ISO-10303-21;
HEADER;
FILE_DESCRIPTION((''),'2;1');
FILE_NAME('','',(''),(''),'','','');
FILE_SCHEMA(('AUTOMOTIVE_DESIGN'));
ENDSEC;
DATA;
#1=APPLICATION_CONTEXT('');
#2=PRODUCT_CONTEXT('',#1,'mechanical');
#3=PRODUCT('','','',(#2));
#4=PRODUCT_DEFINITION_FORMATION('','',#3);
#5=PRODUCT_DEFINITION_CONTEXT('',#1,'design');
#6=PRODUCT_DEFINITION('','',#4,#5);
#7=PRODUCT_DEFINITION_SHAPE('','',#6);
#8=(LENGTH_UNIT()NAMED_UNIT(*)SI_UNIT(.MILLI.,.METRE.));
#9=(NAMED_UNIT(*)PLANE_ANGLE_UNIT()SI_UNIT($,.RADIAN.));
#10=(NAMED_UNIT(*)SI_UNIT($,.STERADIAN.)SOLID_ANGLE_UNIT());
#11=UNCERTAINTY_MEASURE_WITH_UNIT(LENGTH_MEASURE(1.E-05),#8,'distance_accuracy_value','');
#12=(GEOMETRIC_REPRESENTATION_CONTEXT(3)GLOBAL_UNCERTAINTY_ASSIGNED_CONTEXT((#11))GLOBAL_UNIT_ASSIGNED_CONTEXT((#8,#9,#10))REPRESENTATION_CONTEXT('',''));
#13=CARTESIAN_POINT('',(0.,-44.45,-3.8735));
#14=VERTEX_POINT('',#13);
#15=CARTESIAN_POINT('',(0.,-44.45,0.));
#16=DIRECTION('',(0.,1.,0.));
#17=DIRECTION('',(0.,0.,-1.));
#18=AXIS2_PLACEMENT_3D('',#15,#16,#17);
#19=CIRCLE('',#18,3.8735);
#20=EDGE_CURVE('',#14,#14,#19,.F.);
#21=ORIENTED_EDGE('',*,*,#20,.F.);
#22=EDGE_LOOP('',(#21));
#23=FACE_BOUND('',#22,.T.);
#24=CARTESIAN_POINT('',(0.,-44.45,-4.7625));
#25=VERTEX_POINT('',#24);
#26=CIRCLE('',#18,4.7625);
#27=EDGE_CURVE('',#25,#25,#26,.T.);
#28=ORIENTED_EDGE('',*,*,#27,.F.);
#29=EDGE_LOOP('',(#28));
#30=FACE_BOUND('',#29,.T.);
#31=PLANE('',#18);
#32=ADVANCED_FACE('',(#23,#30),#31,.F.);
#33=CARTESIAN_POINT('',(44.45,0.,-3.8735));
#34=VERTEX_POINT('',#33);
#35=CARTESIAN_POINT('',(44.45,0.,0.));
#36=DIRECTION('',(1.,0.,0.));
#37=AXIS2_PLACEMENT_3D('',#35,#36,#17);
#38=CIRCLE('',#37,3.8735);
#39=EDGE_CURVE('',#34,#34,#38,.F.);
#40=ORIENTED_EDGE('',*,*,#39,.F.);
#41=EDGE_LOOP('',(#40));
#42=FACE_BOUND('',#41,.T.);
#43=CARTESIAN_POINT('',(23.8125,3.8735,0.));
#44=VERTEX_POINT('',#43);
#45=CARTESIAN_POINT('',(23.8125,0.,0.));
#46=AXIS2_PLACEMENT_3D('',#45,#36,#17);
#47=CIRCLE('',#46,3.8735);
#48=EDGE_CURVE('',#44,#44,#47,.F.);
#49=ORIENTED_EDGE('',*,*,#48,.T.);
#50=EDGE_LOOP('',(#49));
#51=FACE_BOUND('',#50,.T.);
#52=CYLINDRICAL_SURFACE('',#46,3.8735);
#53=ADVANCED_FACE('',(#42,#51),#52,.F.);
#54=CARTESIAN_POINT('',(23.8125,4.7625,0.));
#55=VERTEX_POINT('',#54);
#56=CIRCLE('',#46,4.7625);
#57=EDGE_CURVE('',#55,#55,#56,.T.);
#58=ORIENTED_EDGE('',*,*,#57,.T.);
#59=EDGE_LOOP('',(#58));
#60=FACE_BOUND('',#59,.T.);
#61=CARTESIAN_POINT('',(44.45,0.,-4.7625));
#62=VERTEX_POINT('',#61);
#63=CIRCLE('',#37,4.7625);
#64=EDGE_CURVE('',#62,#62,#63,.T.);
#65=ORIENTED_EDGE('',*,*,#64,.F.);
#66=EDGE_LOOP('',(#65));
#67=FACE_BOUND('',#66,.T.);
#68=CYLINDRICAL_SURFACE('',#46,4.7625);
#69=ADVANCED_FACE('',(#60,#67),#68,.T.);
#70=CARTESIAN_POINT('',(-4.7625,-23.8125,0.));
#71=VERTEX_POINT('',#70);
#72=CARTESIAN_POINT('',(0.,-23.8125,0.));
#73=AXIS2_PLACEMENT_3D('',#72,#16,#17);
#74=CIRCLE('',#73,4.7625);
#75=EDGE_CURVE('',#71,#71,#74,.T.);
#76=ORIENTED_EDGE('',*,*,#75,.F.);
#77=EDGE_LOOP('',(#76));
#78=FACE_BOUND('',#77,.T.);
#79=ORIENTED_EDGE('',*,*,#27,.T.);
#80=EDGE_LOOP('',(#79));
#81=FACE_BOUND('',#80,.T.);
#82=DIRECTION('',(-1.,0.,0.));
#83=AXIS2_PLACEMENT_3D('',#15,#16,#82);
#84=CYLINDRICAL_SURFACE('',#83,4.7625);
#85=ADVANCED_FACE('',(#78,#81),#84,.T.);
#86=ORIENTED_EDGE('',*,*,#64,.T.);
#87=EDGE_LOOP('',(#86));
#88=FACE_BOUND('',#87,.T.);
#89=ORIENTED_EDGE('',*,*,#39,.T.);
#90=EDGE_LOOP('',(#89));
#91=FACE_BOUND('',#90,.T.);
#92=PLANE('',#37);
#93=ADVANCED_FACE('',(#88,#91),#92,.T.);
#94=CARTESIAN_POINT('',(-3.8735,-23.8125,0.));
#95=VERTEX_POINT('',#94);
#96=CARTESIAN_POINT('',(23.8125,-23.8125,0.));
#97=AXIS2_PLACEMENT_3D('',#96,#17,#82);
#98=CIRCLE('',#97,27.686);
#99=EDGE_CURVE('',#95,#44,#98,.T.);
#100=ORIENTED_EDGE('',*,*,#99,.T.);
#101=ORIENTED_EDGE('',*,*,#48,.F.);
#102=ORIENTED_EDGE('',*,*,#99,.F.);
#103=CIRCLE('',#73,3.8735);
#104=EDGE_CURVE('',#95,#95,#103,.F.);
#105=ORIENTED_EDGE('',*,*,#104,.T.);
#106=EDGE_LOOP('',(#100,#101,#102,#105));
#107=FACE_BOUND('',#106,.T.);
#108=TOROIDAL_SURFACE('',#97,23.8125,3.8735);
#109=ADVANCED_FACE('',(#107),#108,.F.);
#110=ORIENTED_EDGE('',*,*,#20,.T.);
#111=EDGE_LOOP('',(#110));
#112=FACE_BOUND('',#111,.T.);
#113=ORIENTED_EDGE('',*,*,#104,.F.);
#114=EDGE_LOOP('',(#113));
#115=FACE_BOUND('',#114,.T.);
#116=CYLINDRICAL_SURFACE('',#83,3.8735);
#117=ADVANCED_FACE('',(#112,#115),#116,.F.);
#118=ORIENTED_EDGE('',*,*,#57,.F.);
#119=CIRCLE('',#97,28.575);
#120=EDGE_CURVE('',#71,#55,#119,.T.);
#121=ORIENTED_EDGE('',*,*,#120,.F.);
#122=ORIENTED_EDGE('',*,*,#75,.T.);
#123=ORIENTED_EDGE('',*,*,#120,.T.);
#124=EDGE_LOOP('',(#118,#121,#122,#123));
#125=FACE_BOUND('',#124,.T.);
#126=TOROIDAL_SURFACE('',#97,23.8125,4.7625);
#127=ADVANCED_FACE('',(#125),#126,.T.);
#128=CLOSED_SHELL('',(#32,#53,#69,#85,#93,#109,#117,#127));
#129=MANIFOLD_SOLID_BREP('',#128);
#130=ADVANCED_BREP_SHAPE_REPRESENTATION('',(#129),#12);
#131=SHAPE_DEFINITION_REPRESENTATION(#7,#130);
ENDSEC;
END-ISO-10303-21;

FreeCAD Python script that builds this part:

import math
import FreeCAD as App
import Part
import Sketcher
from FreeCAD import Vector
Q = App.Units.Quantity

doc = App.newDocument("Part")
body = doc.addObject("PartDesign::Body", "Body")

# Sketch on YZ plane
sketch1 = body.newObject("Sketcher::SketchObject", "Sketch")
sketch1.AttachmentSupport = (doc.getObject("YZ_Plane"), [""])
sketch1.MapMode = "FlatFace"
sketch1.AttachmentOffset = App.Placement(Vector(0, 0, 1.75 * 25.4), App.Rotation())
sketch1.addGeometry([
    Part.Circle(Vector(0, 0, 0), Vector(0, 0, 1), 4.8),
    Part.Circle(Vector(0, 0, 0), Vector(0, 0, 1), 3.9),
], False)
sketch1.addConstraint([
    Sketcher.Constraint("Coincident", 0, 3, -1, 1),
    Sketcher.Constraint("Coincident", 1, 3, -1, 1),
    Sketcher.Constraint("Diameter", 0, Q("0.375 in")),
    Sketcher.Constraint("Diameter", 1, Q("0.305 in")),
])

# Sketch on XY plane
sketch2 = body.newObject("Sketcher::SketchObject", "Sketch001")
sketch2.AttachmentSupport = (doc.getObject("XY_Plane"), [""])
sketch2.MapMode = "FlatFace"
sketch2.addGeometry([
    Part.LineSegment(Vector(0, -44, 0), Vector(0, -24, 0)),
    Part.ArcOfCircle(Part.Circle(Vector(24, -24, 0), Vector(0, 0, 1), 24), math.radians(90), math.radians(180)),
    Part.LineSegment(Vector(24, 0, 0), Vector(44, 0, 0)),
], False)
sketch2.addConstraint([
    Sketcher.Constraint("Tangent", 0, 2, 1, 2),
    Sketcher.Constraint("Tangent", 1, 1, 2, 1),
    Sketcher.Constraint("Vertical", 0),
    Sketcher.Constraint("Horizontal", 2),
    Sketcher.Constraint("PointOnObject", 0, 1, -2),
    Sketcher.Constraint("PointOnObject", 1, 1, -1),
    Sketcher.Constraint("Equal", 2, 0),
    Sketcher.Constraint("Radius", 1, Q("0.9375 in")),
    Sketcher.Constraint("DistanceX", 2, 1, 2, 2, Q("0.8125 in")),
])
doc.recompute()

additivepipe = body.newObject("PartDesign::AdditivePipe", "AdditivePipe")
additivepipe.Profile = sketch1
additivepipe.Spine = (sketch2, ["Edge1", "Edge2", "Edge3"])

doc.recompute()
